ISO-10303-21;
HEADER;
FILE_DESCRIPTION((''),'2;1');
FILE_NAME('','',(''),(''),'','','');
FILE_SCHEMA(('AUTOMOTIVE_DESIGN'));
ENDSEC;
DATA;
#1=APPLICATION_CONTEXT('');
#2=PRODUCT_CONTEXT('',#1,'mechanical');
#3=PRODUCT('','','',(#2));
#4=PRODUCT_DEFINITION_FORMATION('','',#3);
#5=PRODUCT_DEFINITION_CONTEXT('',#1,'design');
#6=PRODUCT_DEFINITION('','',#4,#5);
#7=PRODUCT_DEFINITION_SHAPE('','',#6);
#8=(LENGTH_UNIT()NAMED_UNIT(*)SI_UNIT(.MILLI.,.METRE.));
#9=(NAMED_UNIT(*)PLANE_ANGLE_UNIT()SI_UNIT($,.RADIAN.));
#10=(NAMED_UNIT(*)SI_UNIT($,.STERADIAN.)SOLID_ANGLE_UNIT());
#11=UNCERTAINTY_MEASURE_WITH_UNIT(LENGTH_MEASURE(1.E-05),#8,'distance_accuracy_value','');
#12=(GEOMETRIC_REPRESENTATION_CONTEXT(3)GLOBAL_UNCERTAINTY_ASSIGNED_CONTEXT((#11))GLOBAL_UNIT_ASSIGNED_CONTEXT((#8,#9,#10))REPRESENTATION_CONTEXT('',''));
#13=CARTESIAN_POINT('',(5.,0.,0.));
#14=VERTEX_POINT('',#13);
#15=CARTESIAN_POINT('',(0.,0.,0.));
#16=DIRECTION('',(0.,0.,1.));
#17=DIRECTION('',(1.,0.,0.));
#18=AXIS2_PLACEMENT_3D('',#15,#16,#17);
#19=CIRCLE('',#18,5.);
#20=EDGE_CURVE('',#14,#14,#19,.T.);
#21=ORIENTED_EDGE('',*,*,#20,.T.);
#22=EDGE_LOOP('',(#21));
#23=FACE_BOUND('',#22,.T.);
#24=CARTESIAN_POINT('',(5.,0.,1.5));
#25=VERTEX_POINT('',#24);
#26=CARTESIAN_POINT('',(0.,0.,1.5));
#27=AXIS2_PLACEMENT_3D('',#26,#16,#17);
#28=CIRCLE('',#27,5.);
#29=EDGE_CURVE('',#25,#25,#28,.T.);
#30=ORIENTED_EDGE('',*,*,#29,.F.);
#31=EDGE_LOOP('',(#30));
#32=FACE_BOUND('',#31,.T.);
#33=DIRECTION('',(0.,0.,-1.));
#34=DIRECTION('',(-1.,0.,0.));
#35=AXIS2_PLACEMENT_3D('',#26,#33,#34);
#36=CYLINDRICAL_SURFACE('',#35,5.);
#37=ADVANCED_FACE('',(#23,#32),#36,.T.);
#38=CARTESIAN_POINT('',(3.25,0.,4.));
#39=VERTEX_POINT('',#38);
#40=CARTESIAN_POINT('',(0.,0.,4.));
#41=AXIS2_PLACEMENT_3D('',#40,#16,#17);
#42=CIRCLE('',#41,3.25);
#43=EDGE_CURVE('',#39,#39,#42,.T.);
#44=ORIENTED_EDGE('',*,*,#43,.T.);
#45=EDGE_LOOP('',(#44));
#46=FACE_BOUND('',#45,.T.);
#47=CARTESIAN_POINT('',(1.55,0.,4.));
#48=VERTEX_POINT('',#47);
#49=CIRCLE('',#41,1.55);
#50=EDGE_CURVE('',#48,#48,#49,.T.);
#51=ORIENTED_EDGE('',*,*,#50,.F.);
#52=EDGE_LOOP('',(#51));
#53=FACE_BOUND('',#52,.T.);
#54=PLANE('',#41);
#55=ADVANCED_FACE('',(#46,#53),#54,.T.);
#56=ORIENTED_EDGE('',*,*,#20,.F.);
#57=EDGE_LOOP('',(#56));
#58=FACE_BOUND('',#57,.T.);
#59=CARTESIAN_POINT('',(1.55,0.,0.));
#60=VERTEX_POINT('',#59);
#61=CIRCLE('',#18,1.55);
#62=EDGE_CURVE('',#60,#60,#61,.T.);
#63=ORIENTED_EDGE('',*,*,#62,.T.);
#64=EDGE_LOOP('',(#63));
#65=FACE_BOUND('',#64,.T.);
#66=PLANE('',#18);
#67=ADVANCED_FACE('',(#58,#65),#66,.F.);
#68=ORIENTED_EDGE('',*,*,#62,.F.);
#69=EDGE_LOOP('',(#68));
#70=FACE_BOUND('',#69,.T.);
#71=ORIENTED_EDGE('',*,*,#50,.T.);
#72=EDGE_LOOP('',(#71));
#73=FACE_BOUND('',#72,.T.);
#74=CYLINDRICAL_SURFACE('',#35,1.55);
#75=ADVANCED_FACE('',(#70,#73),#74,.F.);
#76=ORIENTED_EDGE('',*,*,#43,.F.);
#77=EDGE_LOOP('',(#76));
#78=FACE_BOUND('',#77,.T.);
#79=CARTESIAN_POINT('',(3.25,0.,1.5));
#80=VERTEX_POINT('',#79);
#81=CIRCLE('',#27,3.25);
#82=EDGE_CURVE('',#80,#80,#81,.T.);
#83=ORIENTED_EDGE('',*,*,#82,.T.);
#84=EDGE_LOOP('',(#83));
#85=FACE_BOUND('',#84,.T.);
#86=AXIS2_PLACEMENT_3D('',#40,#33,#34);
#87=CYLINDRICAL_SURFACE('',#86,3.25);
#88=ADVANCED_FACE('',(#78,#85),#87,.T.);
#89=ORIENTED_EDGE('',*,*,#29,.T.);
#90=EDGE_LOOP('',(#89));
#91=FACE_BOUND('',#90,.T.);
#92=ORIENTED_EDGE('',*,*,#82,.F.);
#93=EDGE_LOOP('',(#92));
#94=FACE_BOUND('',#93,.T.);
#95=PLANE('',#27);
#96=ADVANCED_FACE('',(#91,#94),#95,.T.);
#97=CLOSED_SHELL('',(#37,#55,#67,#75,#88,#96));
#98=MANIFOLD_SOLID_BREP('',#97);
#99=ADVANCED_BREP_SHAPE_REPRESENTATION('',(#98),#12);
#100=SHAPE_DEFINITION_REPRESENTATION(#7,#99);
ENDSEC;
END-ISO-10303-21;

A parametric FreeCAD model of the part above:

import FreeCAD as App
import Part
import Sketcher
from FreeCAD import Vector
Q = App.Units.Quantity

doc = App.newDocument("Part")
body = doc.addObject("PartDesign::Body", "Body")

sketch1 = body.newObject("Sketcher::SketchObject", "Sketch")
sketch1.AttachmentSupport = (doc.getObject("XY_Plane"), [""])
sketch1.MapMode = "FlatFace"
sketch1.addGeometry([
    Part.Circle(Vector(0, 0, 0), Vector(0, 0, 1), 5),
    Part.Circle(Vector(0, 0, 0), Vector(0, 0, 1), 1.6),
], False)
sketch1.addConstraint([
    Sketcher.Constraint("Coincident", 0, 3, -1, 1),
    Sketcher.Constraint("Coincident", 1, 3, -1, 1),
    Sketcher.Constraint("Diameter", 0, Q("10 mm")),
    Sketcher.Constraint("Diameter", 1, Q("3.1 mm")),
])
pad1 = body.newObject("PartDesign::Pad", "Pad")
pad1.Profile = sketch1
pad1.Length = 1.5

sketch2 = body.newObject("Sketcher::SketchObject", "Sketch001")
sketch2.AttachmentSupport = (doc.getObject("XY_Plane"), [""])
sketch2.MapMode = "FlatFace"
sketch2.AttachmentOffset = App.Placement(Vector(0, 0, 1.5), App.Rotation())
sketch2.addGeometry([
    Part.Circle(Vector(0, 0, 0), Vector(0, 0, 1), 3.2),
    Part.Circle(Vector(0, 0, 0), Vector(0, 0, 1), 1.6),
], False)
sketch2.addConstraint([
    Sketcher.Constraint("Coincident", 0, 3, -1, 1),
    Sketcher.Constraint("Coincident", 1, 3, -1, 1),
    Sketcher.Constraint("Diameter", 0, Q("6.5 mm")),
    Sketcher.Constraint("Diameter", 1, Q("3.1 mm")),
])
pad2 = body.newObject("PartDesign::Pad", "Pad001")
pad2.Profile = sketch2
pad2.Length = 2.5

doc.recompute()
